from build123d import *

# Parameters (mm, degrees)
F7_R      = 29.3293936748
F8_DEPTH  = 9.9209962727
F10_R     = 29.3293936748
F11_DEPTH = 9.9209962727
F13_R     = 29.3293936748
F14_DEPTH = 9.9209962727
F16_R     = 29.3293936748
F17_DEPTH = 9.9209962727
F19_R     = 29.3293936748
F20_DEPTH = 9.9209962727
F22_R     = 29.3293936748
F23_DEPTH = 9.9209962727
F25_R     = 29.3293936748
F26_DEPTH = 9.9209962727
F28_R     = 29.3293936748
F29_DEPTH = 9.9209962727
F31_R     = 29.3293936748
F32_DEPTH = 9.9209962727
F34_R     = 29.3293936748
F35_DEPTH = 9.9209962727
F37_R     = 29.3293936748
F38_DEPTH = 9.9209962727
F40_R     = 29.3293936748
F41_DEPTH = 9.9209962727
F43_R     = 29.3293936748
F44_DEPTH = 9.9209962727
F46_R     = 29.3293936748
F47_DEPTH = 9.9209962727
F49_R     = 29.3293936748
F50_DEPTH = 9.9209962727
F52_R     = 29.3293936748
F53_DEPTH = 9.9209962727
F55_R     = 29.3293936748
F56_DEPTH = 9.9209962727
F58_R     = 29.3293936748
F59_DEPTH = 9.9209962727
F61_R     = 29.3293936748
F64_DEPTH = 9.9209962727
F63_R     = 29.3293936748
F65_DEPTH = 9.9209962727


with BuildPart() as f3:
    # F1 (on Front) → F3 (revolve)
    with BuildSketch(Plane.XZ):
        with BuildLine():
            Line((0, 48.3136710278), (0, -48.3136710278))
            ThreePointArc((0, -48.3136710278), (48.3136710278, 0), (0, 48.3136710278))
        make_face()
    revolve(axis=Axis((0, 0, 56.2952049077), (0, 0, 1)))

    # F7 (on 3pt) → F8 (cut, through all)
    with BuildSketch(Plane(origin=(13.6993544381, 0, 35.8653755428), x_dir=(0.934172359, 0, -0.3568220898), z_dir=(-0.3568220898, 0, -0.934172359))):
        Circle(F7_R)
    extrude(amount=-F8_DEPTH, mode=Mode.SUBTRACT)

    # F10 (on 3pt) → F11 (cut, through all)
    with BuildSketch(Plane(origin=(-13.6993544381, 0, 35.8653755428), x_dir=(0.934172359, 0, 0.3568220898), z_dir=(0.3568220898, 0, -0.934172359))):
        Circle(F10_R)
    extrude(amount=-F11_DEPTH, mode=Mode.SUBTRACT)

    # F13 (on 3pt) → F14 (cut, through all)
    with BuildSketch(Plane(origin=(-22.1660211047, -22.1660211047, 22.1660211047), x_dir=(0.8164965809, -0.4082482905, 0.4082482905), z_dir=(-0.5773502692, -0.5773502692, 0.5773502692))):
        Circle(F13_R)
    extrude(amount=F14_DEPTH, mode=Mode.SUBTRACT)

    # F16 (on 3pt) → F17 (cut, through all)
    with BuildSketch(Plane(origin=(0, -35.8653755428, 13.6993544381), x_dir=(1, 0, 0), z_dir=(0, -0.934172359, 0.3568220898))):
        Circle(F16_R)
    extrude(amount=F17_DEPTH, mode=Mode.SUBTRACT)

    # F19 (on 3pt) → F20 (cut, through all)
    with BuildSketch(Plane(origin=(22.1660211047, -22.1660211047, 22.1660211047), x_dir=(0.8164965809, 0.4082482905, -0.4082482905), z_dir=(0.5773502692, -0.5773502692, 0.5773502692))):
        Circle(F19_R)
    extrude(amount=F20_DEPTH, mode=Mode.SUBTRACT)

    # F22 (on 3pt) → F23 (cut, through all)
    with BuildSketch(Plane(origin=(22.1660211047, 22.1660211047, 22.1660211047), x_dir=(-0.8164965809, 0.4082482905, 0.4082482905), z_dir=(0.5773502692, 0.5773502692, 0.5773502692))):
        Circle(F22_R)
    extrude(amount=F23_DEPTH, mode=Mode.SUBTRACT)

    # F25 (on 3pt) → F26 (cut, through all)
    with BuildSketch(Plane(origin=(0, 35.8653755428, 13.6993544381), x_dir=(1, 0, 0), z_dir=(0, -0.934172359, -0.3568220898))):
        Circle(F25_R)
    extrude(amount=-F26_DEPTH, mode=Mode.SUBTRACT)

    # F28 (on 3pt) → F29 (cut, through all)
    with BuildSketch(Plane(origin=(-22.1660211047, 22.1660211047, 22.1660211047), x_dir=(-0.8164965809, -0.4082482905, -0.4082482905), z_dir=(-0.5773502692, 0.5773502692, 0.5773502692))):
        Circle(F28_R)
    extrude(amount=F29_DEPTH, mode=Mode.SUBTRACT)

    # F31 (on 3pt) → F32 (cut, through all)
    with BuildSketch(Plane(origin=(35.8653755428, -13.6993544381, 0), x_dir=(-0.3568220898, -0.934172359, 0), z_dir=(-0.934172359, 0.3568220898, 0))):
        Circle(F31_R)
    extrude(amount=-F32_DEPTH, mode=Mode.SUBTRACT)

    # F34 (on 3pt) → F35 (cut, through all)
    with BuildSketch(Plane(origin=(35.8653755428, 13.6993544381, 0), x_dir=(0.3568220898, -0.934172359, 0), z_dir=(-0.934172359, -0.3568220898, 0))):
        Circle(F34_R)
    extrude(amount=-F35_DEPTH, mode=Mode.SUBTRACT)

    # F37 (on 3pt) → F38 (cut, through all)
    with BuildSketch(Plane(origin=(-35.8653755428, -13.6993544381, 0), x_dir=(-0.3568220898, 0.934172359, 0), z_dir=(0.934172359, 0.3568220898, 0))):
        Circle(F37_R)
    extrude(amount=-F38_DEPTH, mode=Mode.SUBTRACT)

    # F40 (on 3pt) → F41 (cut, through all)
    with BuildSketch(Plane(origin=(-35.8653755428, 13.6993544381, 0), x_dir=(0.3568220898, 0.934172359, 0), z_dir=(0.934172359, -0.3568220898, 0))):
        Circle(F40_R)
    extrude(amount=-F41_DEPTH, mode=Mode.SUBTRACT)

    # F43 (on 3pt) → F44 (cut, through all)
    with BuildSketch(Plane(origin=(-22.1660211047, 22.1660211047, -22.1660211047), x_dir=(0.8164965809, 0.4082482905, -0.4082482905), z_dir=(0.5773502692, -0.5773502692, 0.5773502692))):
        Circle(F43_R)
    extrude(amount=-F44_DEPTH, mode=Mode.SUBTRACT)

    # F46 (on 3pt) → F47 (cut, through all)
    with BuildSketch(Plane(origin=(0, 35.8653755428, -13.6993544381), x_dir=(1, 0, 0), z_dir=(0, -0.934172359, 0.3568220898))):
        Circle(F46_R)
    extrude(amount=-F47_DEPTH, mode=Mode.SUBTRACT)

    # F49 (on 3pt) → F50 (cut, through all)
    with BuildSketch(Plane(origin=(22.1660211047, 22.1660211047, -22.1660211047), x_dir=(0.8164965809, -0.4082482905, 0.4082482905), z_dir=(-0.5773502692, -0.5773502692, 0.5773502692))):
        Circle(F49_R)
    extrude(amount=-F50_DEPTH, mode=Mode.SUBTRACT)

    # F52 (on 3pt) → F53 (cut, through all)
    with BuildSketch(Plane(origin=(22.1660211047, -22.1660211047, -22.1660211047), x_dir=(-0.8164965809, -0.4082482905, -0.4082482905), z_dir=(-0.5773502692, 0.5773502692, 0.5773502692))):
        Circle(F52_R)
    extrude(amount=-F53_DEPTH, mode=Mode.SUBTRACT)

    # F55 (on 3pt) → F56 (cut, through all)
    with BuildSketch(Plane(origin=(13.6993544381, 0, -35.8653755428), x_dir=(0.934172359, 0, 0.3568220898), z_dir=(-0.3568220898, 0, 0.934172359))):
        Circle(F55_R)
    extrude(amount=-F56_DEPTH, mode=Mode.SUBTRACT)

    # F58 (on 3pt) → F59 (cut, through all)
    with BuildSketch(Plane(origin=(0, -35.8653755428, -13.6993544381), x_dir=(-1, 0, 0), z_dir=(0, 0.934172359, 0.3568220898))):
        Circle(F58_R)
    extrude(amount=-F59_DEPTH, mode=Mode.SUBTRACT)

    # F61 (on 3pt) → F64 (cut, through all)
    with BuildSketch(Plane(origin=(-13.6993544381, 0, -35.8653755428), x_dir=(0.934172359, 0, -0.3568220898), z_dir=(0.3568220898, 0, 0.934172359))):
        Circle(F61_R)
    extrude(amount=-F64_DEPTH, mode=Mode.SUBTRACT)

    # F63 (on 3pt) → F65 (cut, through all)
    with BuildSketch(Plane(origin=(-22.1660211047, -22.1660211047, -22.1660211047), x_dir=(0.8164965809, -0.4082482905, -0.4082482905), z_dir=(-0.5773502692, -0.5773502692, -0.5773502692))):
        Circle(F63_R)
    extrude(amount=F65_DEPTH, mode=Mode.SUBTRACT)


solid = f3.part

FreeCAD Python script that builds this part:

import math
import FreeCAD as App
import Part
import Sketcher
Q = App.Units.Quantity

doc = App.newDocument("Part")
params = doc.addObject("Spreadsheet::Sheet", "Params")
for row, (alias, value) in enumerate([
    ("revolution_angle", "360 deg"),
], start=1):
    params.set(f"A{row}", alias)
    params.set(f"B{row}", "=" + value)
    params.setAlias(f"B{row}", alias)

body = doc.addObject("PartDesign::Body", "Body")

sketch1 = body.newObject("Sketcher::SketchObject", "Sketch")
sketch1.AttachmentSupport = (doc.getObject("XZ_Plane"), [""])
sketch1.MapMode = "FlatFace"
sketch1.addGeometry([
    Part.LineSegment(App.Vector(0, 48, 0), App.Vector(0, -48, 0)),
    Part.ArcOfCircle(Part.Circle(App.Vector(0, 0, 0), App.Vector(0, 0, 1), 48), math.radians(-90), math.radians(90)),
], False)
sketch1.addConstraint([
    Sketcher.Constraint("Coincident", 0, 1, 1, 2),
    Sketcher.Constraint("Coincident", 1, 1, 0, 2),
    Sketcher.Constraint("Vertical", 0),
    Sketcher.Constraint("Coincident", 1, 3, -1, 1),
    Sketcher.Constraint("PointOnObject", 0, 1, -2),
    Sketcher.Constraint("Radius", 1, Q("48.313671 mm")),
])
revolution = body.newObject("PartDesign::Revolution", "Revolution")
revolution.Profile = sketch1
revolution.ReferenceAxis = (sketch1, ["V_Axis"])
revolution.setExpression("Angle", "Params.revolution_angle")

sketch2 = body.newObject("Sketcher::SketchObject", "Sketch001")
sketch2.Placement = App.Placement(App.Vector(13.699354, 0, 35.865376), App.Rotation(App.Vector(0.934172359, 0, -0.35682209), App.Vector(0, -1, 0), App.Vector(-0.35682209, 0, -0.934172359), "ZXY"))
sketch2.addGeometry(Part.Circle(App.Vector(0, 0, 0), App.Vector(0, 0, 1), 29), False)
sketch2.addConstraint([
    Sketcher.Constraint("Coincident", 0, 3, -1, 1),
    Sketcher.Constraint("Diameter", 0, Q("58.658787 mm")),
])
pocket1 = body.newObject("PartDesign::Pocket", "Pocket")
pocket1.Profile = sketch2
pocket1.Type = "ThroughAll"

sketch3 = body.newObject("Sketcher::SketchObject", "Sketch002")
sketch3.Placement = App.Placement(App.Vector(-13.699354, 0, 35.865376), App.Rotation(App.Vector(0.934172359, 0, 0.35682209), App.Vector(0, -1, 0), App.Vector(0.35682209, 0, -0.934172359), "ZXY"))
sketch3.addGeometry(Part.Circle(App.Vector(0, 0, 0), App.Vector(0, 0, 1), 29), False)
sketch3.addConstraint([
    Sketcher.Constraint("Coincident", 0, 3, -1, 1),
    Sketcher.Constraint("Diameter", 0, Q("58.658787 mm")),
])
pocket2 = body.newObject("PartDesign::Pocket", "Pocket001")
pocket2.Profile = sketch3
pocket2.Type = "ThroughAll"

sketch4 = body.newObject("Sketcher::SketchObject", "Sketch003")
sketch4.Placement = App.Placement(App.Vector(-22.166021, -22.166021, 22.166021), App.Rotation(App.Vector(0.816496581, -0.40824829, 0.40824829), App.Vector(0, 0.707106781, 0.707106781), App.Vector(-0.577350269, -0.577350269, 0.577350269), "ZXY"))
sketch4.addGeometry(Part.Circle(App.Vector(0, 0, 0), App.Vector(0, 0, 1), 29), False)
sketch4.addConstraint([
    Sketcher.Constraint("Coincident", 0, 3, -1, 1),
    Sketcher.Constraint("Diameter", 0, Q("58.658787 mm")),
])
pocket3 = body.newObject("PartDesign::Pocket", "Pocket002")
pocket3.Profile = sketch4
pocket3.Type = "ThroughAll"
pocket3.Reversed = True

sketch5 = body.newObject("Sketcher::SketchObject", "Sketch004")
sketch5.Placement = App.Placement(App.Vector(0, -35.865376, 13.699354), App.Rotation(App.Vector(1, 0, 0), App.Vector(0, 0.35682209, 0.934172359), App.Vector(0, -0.934172359, 0.35682209), "ZXY"))
sketch5.addGeometry(Part.Circle(App.Vector(0, 0, 0), App.Vector(0, 0, 1), 29), False)
sketch5.addConstraint([
    Sketcher.Constraint("Coincident", 0, 3, -1, 1),
    Sketcher.Constraint("Diameter", 0, Q("58.658787 mm")),
])
pocket4 = body.newObject("PartDesign::Pocket", "Pocket003")
pocket4.Profile = sketch5
pocket4.Type = "ThroughAll"
pocket4.Reversed = True

sketch6 = body.newObject("Sketcher::SketchObject", "Sketch005")
sketch6.Placement = App.Placement(App.Vector(22.166021, -22.166021, 22.166021), App.Rotation(App.Vector(0.816496581, 0.40824829, -0.40824829), App.Vector(0, 0.707106781, 0.707106781), App.Vector(0.577350269, -0.577350269, 0.577350269), "ZXY"))
sketch6.addGeometry(Part.Circle(App.Vector(0, 0, 0), App.Vector(0, 0, 1), 29), False)
sketch6.addConstraint([
    Sketcher.Constraint("Coincident", 0, 3, -1, 1),
    Sketcher.Constraint("Diameter", 0, Q("58.658787 mm")),
])
pocket5 = body.newObject("PartDesign::Pocket", "Pocket004")
pocket5.Profile = sketch6
pocket5.Type = "ThroughAll"
pocket5.Reversed = True

sketch7 = body.newObject("Sketcher::SketchObject", "Sketch006")
sketch7.Placement = App.Placement(App.Vector(22.166021, 22.166021, 22.166021), App.Rotation(App.Vector(-0.816496581, 0.40824829, 0.40824829), App.Vector(0, -0.707106781, 0.707106781), App.Vector(0.577350269, 0.577350269, 0.577350269), "ZXY"))
sketch7.addGeometry(Part.Circle(App.Vector(0, 0, 0), App.Vector(0, 0, 1), 29), False)
sketch7.addConstraint([
    Sketcher.Constraint("Coincident", 0, 3, -1, 1),
    Sketcher.Constraint("Diameter", 0, Q("58.658787 mm")),
])
pocket6 = body.newObject("PartDesign::Pocket", "Pocket005")
pocket6.Profile = sketch7
pocket6.Type = "ThroughAll"
pocket6.Reversed = True

sketch8 = body.newObject("Sketcher::SketchObject", "Sketch007")
sketch8.Placement = App.Placement(App.Vector(0, 35.865376, 13.699354), App.Rotation(App.Vector(1, 0, 0), App.Vector(0, -0.35682209, 0.934172359), App.Vector(0, -0.934172359, -0.35682209), "ZXY"))
sketch8.addGeometry(Part.Circle(App.Vector(0, 0, 0), App.Vector(0, 0, 1), 29), False)
sketch8.addConstraint([
    Sketcher.Constraint("Coincident", 0, 3, -1, 1),
    Sketcher.Constraint("Diameter", 0, Q("58.658787 mm")),
])
pocket7 = body.newObject("PartDesign::Pocket", "Pocket006")
pocket7.Profile = sketch8
pocket7.Type = "ThroughAll"

sketch9 = body.newObject("Sketcher::SketchObject", "Sketch008")
sketch9.Placement = App.Placement(App.Vector(-22.166021, 22.166021, 22.166021), App.Rotation(App.Vector(-0.816496581, -0.40824829, -0.40824829), App.Vector(0, -0.707106781, 0.707106781), App.Vector(-0.577350269, 0.577350269, 0.577350269), "ZXY"))
sketch9.addGeometry(Part.Circle(App.Vector(0, 0, 0), App.Vector(0, 0, 1), 29), False)
sketch9.addConstraint([
    Sketcher.Constraint("Coincident", 0, 3, -1, 1),
    Sketcher.Constraint("Diameter", 0, Q("58.658787 mm")),
])
pocket8 = body.newObject("PartDesign::Pocket", "Pocket007")
pocket8.Profile = sketch9
pocket8.Type = "ThroughAll"
pocket8.Reversed = True

sketch10 = body.newObject("Sketcher::SketchObject", "Sketch009")
sketch10.Placement = App.Placement(App.Vector(35.865376, -13.699354, 0), App.Rotation(App.Vector(-0.35682209, -0.934172359, 0), App.Vector(0, 0, 1), App.Vector(-0.934172359, 0.35682209, 0), "ZXY"))
sketch10.addGeometry(Part.Circle(App.Vector(0, 0, 0), App.Vector(0, 0, 1), 29), False)
sketch10.addConstraint([
    Sketcher.Constraint("Coincident", 0, 3, -1, 1),
    Sketcher.Constraint("Diameter", 0, Q("58.658787 mm")),
])
pocket9 = body.newObject("PartDesign::Pocket", "Pocket008")
pocket9.Profile = sketch10
pocket9.Type = "ThroughAll"

sketch11 = body.newObject("Sketcher::SketchObject", "Sketch010")
sketch11.Placement = App.Placement(App.Vector(35.865376, 13.699354, 0), App.Rotation(App.Vector(0.35682209, -0.934172359, 0), App.Vector(0, 0, 1), App.Vector(-0.934172359, -0.35682209, 0), "ZXY"))
sketch11.addGeometry(Part.Circle(App.Vector(0, 0, 0), App.Vector(0, 0, 1), 29), False)
sketch11.addConstraint([
    Sketcher.Constraint("Coincident", 0, 3, -1, 1),
    Sketcher.Constraint("Diameter", 0, Q("58.658787 mm")),
])
pocket10 = body.newObject("PartDesign::Pocket", "Pocket009")
pocket10.Profile = sketch11
pocket10.Type = "ThroughAll"

sketch12 = body.newObject("Sketcher::SketchObject", "Sketch011")
sketch12.Placement = App.Placement(App.Vector(-35.865376, -13.699354, 0), App.Rotation(App.Vector(-0.35682209, 0.934172359, 0), App.Vector(0, 0, 1), App.Vector(0.934172359, 0.35682209, 0), "ZXY"))
sketch12.addGeometry(Part.Circle(App.Vector(0, 0, 0), App.Vector(0, 0, 1), 29), False)
sketch12.addConstraint([
    Sketcher.Constraint("Coincident", 0, 3, -1, 1),
    Sketcher.Constraint("Diameter", 0, Q("58.658787 mm")),
])
pocket11 = body.newObject("PartDesign::Pocket", "Pocket010")
pocket11.Profile = sketch12
pocket11.Type = "ThroughAll"

sketch13 = body.newObject("Sketcher::SketchObject", "Sketch012")
sketch13.Placement = App.Placement(App.Vector(-35.865376, 13.699354, 0), App.Rotation(App.Vector(0.35682209, 0.934172359, 0), App.Vector(0, 0, 1), App.Vector(0.934172359, -0.35682209, 0), "ZXY"))
sketch13.addGeometry(Part.Circle(App.Vector(0, 0, 0), App.Vector(0, 0, 1), 29), False)
sketch13.addConstraint([
    Sketcher.Constraint("Coincident", 0, 3, -1, 1),
    Sketcher.Constraint("Diameter", 0, Q("58.658787 mm")),
])
pocket12 = body.newObject("PartDesign::Pocket", "Pocket011")
pocket12.Profile = sketch13
pocket12.Type = "ThroughAll"

sketch14 = body.newObject("Sketcher::SketchObject", "Sketch013")
sketch14.Placement = App.Placement(App.Vector(-22.166021, 22.166021, -22.166021), App.Rotation(App.Vector(0.816496581, 0.40824829, -0.40824829), App.Vector(0, 0.707106781, 0.707106781), App.Vector(0.577350269, -0.577350269, 0.577350269), "ZXY"))
sketch14.addGeometry(Part.Circle(App.Vector(0, 0, 0), App.Vector(0, 0, 1), 29), False)
sketch14.addConstraint([
    Sketcher.Constraint("Coincident", 0, 3, -1, 1),
    Sketcher.Constraint("Diameter", 0, Q("58.658787 mm")),
])
pocket13 = body.newObject("PartDesign::Pocket", "Pocket012")
pocket13.Profile = sketch14
pocket13.Type = "ThroughAll"

sketch15 = body.newObject("Sketcher::SketchObject", "Sketch014")
sketch15.Placement = App.Placement(App.Vector(0, 35.865376, -13.699354), App.Rotation(App.Vector(1, 0, 0), App.Vector(0, 0.35682209, 0.934172359), App.Vector(0, -0.934172359, 0.35682209), "ZXY"))
sketch15.addGeometry(Part.Circle(App.Vector(0, 0, 0), App.Vector(0, 0, 1), 29), False)
sketch15.addConstraint([
    Sketcher.Constraint("Coincident", 0, 3, -1, 1),
    Sketcher.Constraint("Diameter", 0, Q("58.658787 mm")),
])
pocket14 = body.newObject("PartDesign::Pocket", "Pocket013")
pocket14.Profile = sketch15
pocket14.Type = "ThroughAll"

sketch16 = body.newObject("Sketcher::SketchObject", "Sketch015")
sketch16.Placement = App.Placement(App.Vector(22.166021, 22.166021, -22.166021), App.Rotation(App.Vector(0.816496581, -0.40824829, 0.40824829), App.Vector(0, 0.707106781, 0.707106781), App.Vector(-0.577350269, -0.577350269, 0.577350269), "ZXY"))
sketch16.addGeometry(Part.Circle(App.Vector(0, 0, 0), App.Vector(0, 0, 1), 29), False)
sketch16.addConstraint([
    Sketcher.Constraint("Coincident", 0, 3, -1, 1),
    Sketcher.Constraint("Diameter", 0, Q("58.658787 mm")),
])
pocket15 = body.newObject("PartDesign::Pocket", "Pocket014")
pocket15.Profile = sketch16
pocket15.Type = "ThroughAll"

sketch17 = body.newObject("Sketcher::SketchObject", "Sketch016")
sketch17.Placement = App.Placement(App.Vector(22.166021, -22.166021, -22.166021), App.Rotation(App.Vector(-0.816496581, -0.40824829, -0.40824829), App.Vector(0, -0.707106781, 0.707106781), App.Vector(-0.577350269, 0.577350269, 0.577350269), "ZXY"))
sketch17.addGeometry(Part.Circle(App.Vector(0, 0, 0), App.Vector(0, 0, 1), 29), False)
sketch17.addConstraint([
    Sketcher.Constraint("Coincident", 0, 3, -1, 1),
    Sketcher.Constraint("Diameter", 0, Q("58.658787 mm")),
])
pocket16 = body.newObject("PartDesign::Pocket", "Pocket015")
pocket16.Profile = sketch17
pocket16.Type = "ThroughAll"

sketch18 = body.newObject("Sketcher::SketchObject", "Sketch017")
sketch18.Placement = App.Placement(App.Vector(13.699354, 0, -35.865376), App.Rotation(App.Vector(0.934172359, 0, 0.35682209), App.Vector(0, 1, 0), App.Vector(-0.35682209, 0, 0.934172359), "ZXY"))
sketch18.addGeometry(Part.Circle(App.Vector(0, 0, 0), App.Vector(0, 0, 1), 29), False)
sketch18.addConstraint([
    Sketcher.Constraint("Coincident", 0, 3, -1, 1),
    Sketcher.Constraint("Diameter", 0, Q("58.658787 mm")),
])
pocket17 = body.newObject("PartDesign::Pocket", "Pocket016")
pocket17.Profile = sketch18
pocket17.Type = "ThroughAll"

sketch19 = body.newObject("Sketcher::SketchObject", "Sketch018")
sketch19.Placement = App.Placement(App.Vector(0, -35.865376, -13.699354), App.Rotation(App.Vector(-1, 0, 0), App.Vector(0, -0.35682209, 0.934172359), App.Vector(0, 0.934172359, 0.35682209), "ZXY"))
sketch19.addGeometry(Part.Circle(App.Vector(0, 0, 0), App.Vector(0, 0, 1), 29), False)
sketch19.addConstraint([
    Sketcher.Constraint("Coincident", 0, 3, -1, 1),
    Sketcher.Constraint("Diameter", 0, Q("58.658787 mm")),
])
pocket18 = body.newObject("PartDesign::Pocket", "Pocket017")
pocket18.Profile = sketch19
pocket18.Type = "ThroughAll"

sketch20 = body.newObject("Sketcher::SketchObject", "Sketch019")
sketch20.Placement = App.Placement(App.Vector(-13.699354, 0, -35.865376), App.Rotation(App.Vector(0.934172359, 0, -0.35682209), App.Vector(0, 1, 0), App.Vector(0.35682209, 0, 0.934172359), "ZXY"))
sketch20.addGeometry(Part.Circle(App.Vector(0, 0, 0), App.Vector(0, 0, 1), 29), False)
sketch20.addConstraint([
    Sketcher.Constraint("Coincident", 0, 3, -1, 1),
    Sketcher.Constraint("Diameter", 0, Q("58.658787 mm")),
])
pocket19 = body.newObject("PartDesign::Pocket", "Pocket018")
pocket19.Profile = sketch20
pocket19.Type = "ThroughAll"

sketch21 = body.newObject("Sketcher::SketchObject", "Sketch020")
sketch21.Placement = App.Placement(App.Vector(-22.166021, -22.166021, -22.166021), App.Rotation(App.Vector(0.816496581, -0.40824829, -0.40824829), App.Vector(0, -0.707106781, 0.707106781), App.Vector(-0.577350269, -0.577350269, -0.577350269), "ZXY"))
sketch21.addGeometry(Part.Circle(App.Vector(0, 0, 0), App.Vector(0, 0, 1), 29), False)
sketch21.addConstraint([
    Sketcher.Constraint("Coincident", 0, 3, -1, 1),
    Sketcher.Constraint("Diameter", 0, Q("58.658787 mm")),
])
pocket20 = body.newObject("PartDesign::Pocket", "Pocket019")
pocket20.Profile = sketch21
pocket20.Type = "ThroughAll"
pocket20.Reversed = True

doc.recompute()
